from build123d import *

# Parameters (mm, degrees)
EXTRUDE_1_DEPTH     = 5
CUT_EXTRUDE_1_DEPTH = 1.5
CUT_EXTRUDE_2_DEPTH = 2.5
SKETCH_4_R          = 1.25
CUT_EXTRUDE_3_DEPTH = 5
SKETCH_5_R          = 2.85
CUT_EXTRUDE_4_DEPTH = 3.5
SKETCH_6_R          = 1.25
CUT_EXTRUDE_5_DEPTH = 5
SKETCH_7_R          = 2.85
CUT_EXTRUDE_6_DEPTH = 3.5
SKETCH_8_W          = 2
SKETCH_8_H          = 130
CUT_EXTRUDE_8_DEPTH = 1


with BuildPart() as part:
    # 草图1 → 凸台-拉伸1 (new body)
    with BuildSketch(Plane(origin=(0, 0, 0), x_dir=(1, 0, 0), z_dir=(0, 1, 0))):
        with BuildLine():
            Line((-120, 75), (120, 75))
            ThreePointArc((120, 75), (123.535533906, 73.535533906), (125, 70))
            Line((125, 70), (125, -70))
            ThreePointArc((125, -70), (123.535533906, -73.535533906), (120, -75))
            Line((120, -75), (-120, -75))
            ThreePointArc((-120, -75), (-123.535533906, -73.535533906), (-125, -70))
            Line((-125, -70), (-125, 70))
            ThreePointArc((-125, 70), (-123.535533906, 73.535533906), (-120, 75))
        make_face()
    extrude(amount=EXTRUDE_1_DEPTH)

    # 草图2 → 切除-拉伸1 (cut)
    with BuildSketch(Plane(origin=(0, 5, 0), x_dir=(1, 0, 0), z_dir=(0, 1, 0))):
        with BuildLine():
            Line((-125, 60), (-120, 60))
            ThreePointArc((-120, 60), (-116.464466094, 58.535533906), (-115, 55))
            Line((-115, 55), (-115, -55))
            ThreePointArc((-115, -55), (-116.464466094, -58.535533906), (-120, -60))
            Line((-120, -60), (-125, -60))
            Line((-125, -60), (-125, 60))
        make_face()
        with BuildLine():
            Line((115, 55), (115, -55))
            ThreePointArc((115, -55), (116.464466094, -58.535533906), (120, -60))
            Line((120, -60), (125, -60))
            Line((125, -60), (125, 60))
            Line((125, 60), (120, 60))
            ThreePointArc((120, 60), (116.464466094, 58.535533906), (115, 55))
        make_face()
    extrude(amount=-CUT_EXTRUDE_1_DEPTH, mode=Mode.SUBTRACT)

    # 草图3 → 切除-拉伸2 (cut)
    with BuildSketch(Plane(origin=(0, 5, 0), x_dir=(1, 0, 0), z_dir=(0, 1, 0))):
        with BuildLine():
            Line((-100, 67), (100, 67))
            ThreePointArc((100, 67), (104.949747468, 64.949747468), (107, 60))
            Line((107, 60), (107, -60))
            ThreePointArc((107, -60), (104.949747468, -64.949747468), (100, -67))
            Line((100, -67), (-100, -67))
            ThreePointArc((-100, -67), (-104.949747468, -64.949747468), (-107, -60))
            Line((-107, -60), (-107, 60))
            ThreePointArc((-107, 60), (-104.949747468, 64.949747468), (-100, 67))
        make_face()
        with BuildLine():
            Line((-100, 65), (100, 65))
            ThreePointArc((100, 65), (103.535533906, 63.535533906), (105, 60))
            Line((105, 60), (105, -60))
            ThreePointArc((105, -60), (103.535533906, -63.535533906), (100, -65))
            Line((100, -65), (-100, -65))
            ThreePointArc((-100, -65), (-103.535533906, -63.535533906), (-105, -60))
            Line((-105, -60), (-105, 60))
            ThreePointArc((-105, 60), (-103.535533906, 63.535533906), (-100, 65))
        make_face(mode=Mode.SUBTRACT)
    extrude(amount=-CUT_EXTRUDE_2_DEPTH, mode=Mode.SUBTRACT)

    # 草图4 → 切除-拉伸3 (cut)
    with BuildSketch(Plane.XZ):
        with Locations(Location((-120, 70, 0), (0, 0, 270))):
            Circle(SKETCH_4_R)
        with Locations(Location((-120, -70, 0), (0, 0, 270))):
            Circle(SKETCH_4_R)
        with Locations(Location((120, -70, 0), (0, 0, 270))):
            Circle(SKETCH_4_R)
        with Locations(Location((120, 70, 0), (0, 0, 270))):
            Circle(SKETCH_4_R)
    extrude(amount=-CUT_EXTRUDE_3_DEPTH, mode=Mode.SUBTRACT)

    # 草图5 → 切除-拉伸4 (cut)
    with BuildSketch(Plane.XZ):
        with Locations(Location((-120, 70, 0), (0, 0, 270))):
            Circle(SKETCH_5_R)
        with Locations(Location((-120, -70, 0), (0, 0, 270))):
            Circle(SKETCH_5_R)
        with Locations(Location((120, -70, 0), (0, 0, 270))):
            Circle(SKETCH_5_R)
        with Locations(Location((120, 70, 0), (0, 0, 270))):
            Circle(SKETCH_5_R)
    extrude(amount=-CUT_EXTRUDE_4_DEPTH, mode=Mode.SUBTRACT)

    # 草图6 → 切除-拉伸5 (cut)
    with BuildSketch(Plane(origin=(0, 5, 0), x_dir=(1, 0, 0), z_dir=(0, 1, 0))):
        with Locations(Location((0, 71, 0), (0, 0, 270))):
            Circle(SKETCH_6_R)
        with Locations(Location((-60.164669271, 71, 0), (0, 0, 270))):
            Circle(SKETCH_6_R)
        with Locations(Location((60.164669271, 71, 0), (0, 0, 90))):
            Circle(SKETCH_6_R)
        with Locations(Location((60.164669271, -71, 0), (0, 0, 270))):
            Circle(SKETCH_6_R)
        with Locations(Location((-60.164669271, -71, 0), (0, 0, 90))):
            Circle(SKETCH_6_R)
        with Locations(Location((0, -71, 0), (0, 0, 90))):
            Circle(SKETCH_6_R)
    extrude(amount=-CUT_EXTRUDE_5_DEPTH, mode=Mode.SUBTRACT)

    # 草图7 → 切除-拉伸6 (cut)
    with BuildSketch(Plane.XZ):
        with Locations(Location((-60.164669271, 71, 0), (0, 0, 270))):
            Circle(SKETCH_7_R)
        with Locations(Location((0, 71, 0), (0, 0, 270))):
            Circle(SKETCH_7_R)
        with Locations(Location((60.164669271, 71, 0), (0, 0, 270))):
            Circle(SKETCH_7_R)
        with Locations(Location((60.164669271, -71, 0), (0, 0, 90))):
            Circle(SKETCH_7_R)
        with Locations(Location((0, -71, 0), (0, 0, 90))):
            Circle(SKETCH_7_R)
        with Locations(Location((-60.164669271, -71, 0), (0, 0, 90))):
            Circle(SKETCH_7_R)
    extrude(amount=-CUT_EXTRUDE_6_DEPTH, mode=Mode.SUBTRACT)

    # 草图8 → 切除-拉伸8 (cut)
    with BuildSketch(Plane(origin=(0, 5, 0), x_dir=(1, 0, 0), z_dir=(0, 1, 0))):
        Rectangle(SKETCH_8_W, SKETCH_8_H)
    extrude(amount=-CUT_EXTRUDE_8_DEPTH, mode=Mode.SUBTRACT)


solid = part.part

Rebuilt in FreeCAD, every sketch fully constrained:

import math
import FreeCAD as App
import Part
import Sketcher
Q = App.Units.Quantity


def add_polygon(sketch, points):
    """Adds a closed chain of lines whose ends are joined by coincident constraints."""
    first, n = sketch.GeometryCount, len(points)
    for a, b in zip(points, points[1:] + points[:1]):
        sketch.addGeometry(Part.LineSegment(App.Vector(*a, 0), App.Vector(*b, 0)), False)
    for i in range(n):
        sketch.addConstraint(Sketcher.Constraint("Coincident", first + i, 2, first + (i + 1) % n, 1))

doc = App.newDocument("Part")
body = doc.addObject("PartDesign::Body", "Body")

# Sketch on XZ plane
sketch1 = body.newObject("Sketcher::SketchObject", "Sketch")
sketch1.AttachmentSupport = (doc.getObject("XZ_Plane"), [""])
sketch1.MapMode = "FlatFace"
sketch1.addGeometry(Part.LineSegment(App.Vector(120, -75, 0), App.Vector(-120, -75, 0)), False)
sketch1.addGeometry(Part.ArcOfCircle(Part.Circle(App.Vector(-120, -70, 0), App.Vector(0, 0, 1), 5), math.radians(180), math.radians(270)), False)
sketch1.addGeometry(Part.LineSegment(App.Vector(-125, -70, 0), App.Vector(-125, 70, 0)), False)
sketch1.addGeometry(Part.ArcOfCircle(Part.Circle(App.Vector(-120, 70, 0), App.Vector(0, 0, 1), 5), math.radians(90), math.radians(180)), False)
sketch1.addGeometry(Part.LineSegment(App.Vector(-120, 75, 0), App.Vector(120, 75, 0)), False)
sketch1.addGeometry(Part.ArcOfCircle(Part.Circle(App.Vector(120, 70, 0), App.Vector(0, 0, 1), 5), math.radians(0), math.radians(90)), False)
sketch1.addGeometry(Part.LineSegment(App.Vector(125, 70, 0), App.Vector(125, -70, 0)), False)
sketch1.addGeometry(Part.ArcOfCircle(Part.Circle(App.Vector(120, -70, 0), App.Vector(0, 0, 1), 5), math.radians(-90), math.radians(0)), False)
sketch1.addConstraint(Sketcher.Constraint("Tangent", 0, 2, 1, 2))
sketch1.addConstraint(Sketcher.Constraint("Tangent", 1, 1, 2, 1))
sketch1.addConstraint(Sketcher.Constraint("Tangent", 2, 2, 3, 2))
sketch1.addConstraint(Sketcher.Constraint("Tangent", 3, 1, 4, 1))
sketch1.addConstraint(Sketcher.Constraint("Tangent", 4, 2, 5, 2))
sketch1.addConstraint(Sketcher.Constraint("Tangent", 5, 1, 6, 1))
sketch1.addConstraint(Sketcher.Constraint("Tangent", 6, 2, 7, 2))
sketch1.addConstraint(Sketcher.Constraint("Tangent", 7, 1, 0, 1))
sketch1.addConstraint(Sketcher.Constraint("Horizontal", 0))
sketch1.addConstraint(Sketcher.Constraint("Vertical", 2))
sketch1.addConstraint(Sketcher.Constraint("Horizontal", 4))
sketch1.addConstraint(Sketcher.Constraint("Vertical", 6))
sketch1.addConstraint(Sketcher.Constraint("Equal", 1, 3))
sketch1.addConstraint(Sketcher.Constraint("Equal", 3, 5))
sketch1.addConstraint(Sketcher.Constraint("Equal", 5, 7))
sketch1.addConstraint(Sketcher.Constraint("Symmetric", 1, 3, 5, 3, -1, 1))
sketch1.addConstraint(Sketcher.Constraint("Radius", 1, Q("5 mm")))
sketch1.addConstraint(Sketcher.Constraint("DistanceX", 0, 2, 0, 1, Q("240 mm")))
sketch1.addConstraint(Sketcher.Constraint("DistanceY", 2, 1, 2, 2, Q("140 mm")))
pad1 = body.newObject("PartDesign::Pad", "Pad")
pad1.Profile = sketch1
pad1.Length = 5
pad1.Reversed = True

# Sketch on XZ plane
sketch2 = body.newObject("Sketcher::SketchObject", "Sketch001")
sketch2.AttachmentSupport = (doc.getObject("XZ_Plane"), [""])
sketch2.MapMode = "FlatFace"
sketch2.AttachmentOffset = App.Placement(App.Vector(0, 0, -5), App.Rotation())
sketch2.addGeometry(Part.LineSegment(App.Vector(-120, -60, 0), App.Vector(-125, -60, 0)), False)
sketch2.addGeometry(Part.LineSegment(App.Vector(-125, -60, 0), App.Vector(-125, 60, 0)), False)
sketch2.addGeometry(Part.LineSegment(App.Vector(-125, 60, 0), App.Vector(-120, 60, 0)), False)
sketch2.addGeometry(Part.ArcOfCircle(Part.Circle(App.Vector(-120, 55, 0), App.Vector(0, 0, 1), 5), math.radians(0), math.radians(90)), False)
sketch2.addGeometry(Part.LineSegment(App.Vector(-115, 55, 0), App.Vector(-115, -55, 0)), False)
sketch2.addGeometry(Part.ArcOfCircle(Part.Circle(App.Vector(-120, -55, 0), App.Vector(0, 0, 1), 5), math.radians(-90), math.radians(0)), False)
sketch2.addGeometry(Part.LineSegment(App.Vector(115, -55, 0), App.Vector(115, 55, 0)), False)
sketch2.addGeometry(Part.ArcOfCircle(Part.Circle(App.Vector(120, 55, 0), App.Vector(0, 0, 1), 5), math.radians(90), math.radians(180)), False)
sketch2.addGeometry(Part.LineSegment(App.Vector(120, 60, 0), App.Vector(125, 60, 0)), False)
sketch2.addGeometry(Part.LineSegment(App.Vector(125, 60, 0), App.Vector(125, -60, 0)), False)
sketch2.addGeometry(Part.LineSegment(App.Vector(125, -60, 0), App.Vector(120, -60, 0)), False)
sketch2.addGeometry(Part.ArcOfCircle(Part.Circle(App.Vector(120, -55, 0), App.Vector(0, 0, 1), 5), math.radians(180), math.radians(270)), False)
sketch2.addConstraint(Sketcher.Constraint("Coincident", 0, 2, 1, 1))
sketch2.addConstraint(Sketcher.Constraint("Coincident", 1, 2, 2, 1))
sketch2.addConstraint(Sketcher.Constraint("Tangent", 2, 2, 3, 2))
sketch2.addConstraint(Sketcher.Constraint("Tangent", 3, 1, 4, 1))
sketch2.addConstraint(Sketcher.Constraint("Tangent", 4, 2, 5, 2))
sketch2.addConstraint(Sketcher.Constraint("Tangent", 5, 1, 0, 1))
sketch2.addConstraint(Sketcher.Constraint("Tangent", 6, 2, 7, 2))
sketch2.addConstraint(Sketcher.Constraint("Tangent", 7, 1, 8, 1))
sketch2.addConstraint(Sketcher.Constraint("Coincident", 8, 2, 9, 1))
sketch2.addConstraint(Sketcher.Constraint("Coincident", 9, 2, 10, 1))
sketch2.addConstraint(Sketcher.Constraint("Tangent", 10, 2, 11, 2))
sketch2.addConstraint(Sketcher.Constraint("Tangent", 11, 1, 6, 1))
sketch2.addConstraint(Sketcher.Constraint("Horizontal", 0))
sketch2.addConstraint(Sketcher.Constraint("Vertical", 1))
sketch2.addConstraint(Sketcher.Constraint("Horizontal", 2))
sketch2.addConstraint(Sketcher.Constraint("Vertical", 4))
sketch2.addConstraint(Sketcher.Constraint("Vertical", 6))
sketch2.addConstraint(Sketcher.Constraint("Horizontal", 8))
sketch2.addConstraint(Sketcher.Constraint("Vertical", 9))
sketch2.addConstraint(Sketcher.Constraint("Horizontal", 10))
sketch2.addConstraint(Sketcher.Constraint("Equal", 3, 5))
sketch2.addConstraint(Sketcher.Constraint("Equal", 5, 7))
sketch2.addConstraint(Sketcher.Constraint("Equal", 7, 11))
sketch2.addConstraint(Sketcher.Constraint("Symmetric", 5, 3, 7, 3, -1, 1))
sketch2.addConstraint(Sketcher.Constraint("Symmetric", 1, 2, 9, 2, -1, 1))
sketch2.addConstraint(Sketcher.Constraint("Horizontal", 3, 3, 7, 3))
sketch2.addConstraint(Sketcher.Constraint("Radius", 3, Q("5 mm")))
sketch2.addConstraint(Sketcher.Constraint("DistanceX", 0, 2, 0, 1, Q("5 mm")))
sketch2.addConstraint(Sketcher.Constraint("DistanceY", 1, 1, 1, 2, Q("120 mm")))
sketch2.addConstraint(Sketcher.Constraint("DistanceX", 3, 3, -1, 1, Q("120 mm")))
pocket1 = body.newObject("PartDesign::Pocket", "Pocket")
pocket1.Profile = sketch2
pocket1.Length = 1.5
pocket1.Reversed = True

# Sketch on XZ plane
sketch3 = body.newObject("Sketcher::SketchObject", "Sketch002")
sketch3.AttachmentSupport = (doc.getObject("XZ_Plane"), [""])
sketch3.MapMode = "FlatFace"
sketch3.AttachmentOffset = App.Placement(App.Vector(0, 0, -5), App.Rotation())
sketch3.addGeometry(Part.LineSegment(App.Vector(100, -67, 0), App.Vector(-100, -67, 0)), False)
sketch3.addGeometry(Part.ArcOfCircle(Part.Circle(App.Vector(-100, -60, 0), App.Vector(0, 0, 1), 7), math.radians(-180), math.radians(-90)), False)
sketch3.addGeometry(Part.LineSegment(App.Vector(-107, -60, 0), App.Vector(-107, 60, 0)), False)
sketch3.addGeometry(Part.ArcOfCircle(Part.Circle(App.Vector(-100, 60, 0), App.Vector(0, 0, 1), 7), math.radians(90), math.radians(180)), False)
sketch3.addGeometry(Part.LineSegment(App.Vector(-100, 67, 0), App.Vector(100, 67, 0)), False)
sketch3.addGeometry(Part.ArcOfCircle(Part.Circle(App.Vector(100, 60, 0), App.Vector(0, 0, 1), 7), math.radians(0), math.radians(90)), False)
sketch3.addGeometry(Part.LineSegment(App.Vector(107, 60, 0), App.Vector(107, -60, 0)), False)
sketch3.addGeometry(Part.ArcOfCircle(Part.Circle(App.Vector(100, -60, 0), App.Vector(0, 0, 1), 7), math.radians(-90), math.radians(0)), False)
sketch3.addGeometry(Part.LineSegment(App.Vector(-100, -65, 0), App.Vector(100, -65, 0)), False)
sketch3.addGeometry(Part.ArcOfCircle(Part.Circle(App.Vector(100, -60, 0), App.Vector(0, 0, 1), 5), math.radians(-90), math.radians(0)), False)
sketch3.addGeometry(Part.LineSegment(App.Vector(105, -60, 0), App.Vector(105, 60, 0)), False)
sketch3.addGeometry(Part.ArcOfCircle(Part.Circle(App.Vector(100, 60, 0), App.Vector(0, 0, 1), 5), math.radians(0), math.radians(90)), False)
sketch3.addGeometry(Part.LineSegment(App.Vector(100, 65, 0), App.Vector(-100, 65, 0)), False)
sketch3.addGeometry(Part.ArcOfCircle(Part.Circle(App.Vector(-100, 60, 0), App.Vector(0, 0, 1), 5), math.radians(90), math.radians(180)), False)
sketch3.addGeometry(Part.LineSegment(App.Vector(-105, 60, 0), App.Vector(-105, -60, 0)), False)
sketch3.addGeometry(Part.ArcOfCircle(Part.Circle(App.Vector(-100, -60, 0), App.Vector(0, 0, 1), 5), math.radians(180), math.radians(270)), False)
sketch3.addConstraint(Sketcher.Constraint("Tangent", 0, 2, 1, 2))
sketch3.addConstraint(Sketcher.Constraint("Tangent", 1, 1, 2, 1))
sketch3.addConstraint(Sketcher.Constraint("Tangent", 2, 2, 3, 2))
sketch3.addConstraint(Sketcher.Constraint("Tangent", 3, 1, 4, 1))
sketch3.addConstraint(Sketcher.Constraint("Tangent", 4, 2, 5, 2))
sketch3.addConstraint(Sketcher.Constraint("Tangent", 5, 1, 6, 1))
sketch3.addConstraint(Sketcher.Constraint("Tangent", 6, 2, 7, 2))
sketch3.addConstraint(Sketcher.Constraint("Tangent", 7, 1, 0, 1))
sketch3.addConstraint(Sketcher.Constraint("Tangent", 8, 2, 9, 1))
sketch3.addConstraint(Sketcher.Constraint("Tangent", 9, 2, 10, 1))
sketch3.addConstraint(Sketcher.Constraint("Tangent", 10, 2, 11, 1))
sketch3.addConstraint(Sketcher.Constraint("Tangent", 11, 2, 12, 1))
sketch3.addConstraint(Sketcher.Constraint("Tangent", 12, 2, 13, 1))
sketch3.addConstraint(Sketcher.Constraint("Tangent", 13, 2, 14, 1))
sketch3.addConstraint(Sketcher.Constraint("Tangent", 14, 2, 15, 1))
sketch3.addConstraint(Sketcher.Constraint("Tangent", 15, 2, 8, 1))
sketch3.addConstraint(Sketcher.Constraint("Horizontal", 0))
sketch3.addConstraint(Sketcher.Constraint("Vertical", 2))
sketch3.addConstraint(Sketcher.Constraint("Horizontal", 4))
sketch3.addConstraint(Sketcher.Constraint("Vertical", 6))
sketch3.addConstraint(Sketcher.Constraint("Horizontal", 8))
sketch3.addConstraint(Sketcher.Constraint("Vertical", 10))
sketch3.addConstraint(Sketcher.Constraint("Horizontal", 12))
sketch3.addConstraint(Sketcher.Constraint("Vertical", 14))
sketch3.addConstraint(Sketcher.Constraint("Coincident", 9, 3, 7, 3))
sketch3.addConstraint(Sketcher.Constraint("Coincident", 11, 3, 5, 3))
sketch3.addConstraint(Sketcher.Constraint("Coincident", 13, 3, 3, 3))
sketch3.addConstraint(Sketcher.Constraint("Equal", 1, 3))
sketch3.addConstraint(Sketcher.Constraint("Equal", 3, 5))
sketch3.addConstraint(Sketcher.Constraint("Equal", 5, 7))
sketch3.addConstraint(Sketcher.Constraint("Equal", 13, 15))
sketch3.addConstraint(Sketcher.Constraint("Symmetric", 1, 3, 5, 3, -1, 1))
sketch3.addConstraint(Sketcher.Constraint("Radius", 1, Q("7 mm")))
sketch3.addConstraint(Sketcher.Constraint("Radius", 9, Q("5 mm")))
sketch3.addConstraint(Sketcher.Constraint("DistanceX", 0, 2, 0, 1, Q("200 mm")))
sketch3.addConstraint(Sketcher.Constraint("DistanceY", 2, 1, 2, 2, Q("120 mm")))
pocket2 = body.newObject("PartDesign::Pocket", "Pocket001")
pocket2.Profile = sketch3
pocket2.Length = 2.5
pocket2.Reversed = True

# Sketch on XZ plane
sketch4 = body.newObject("Sketcher::SketchObject", "Sketch003")
sketch4.AttachmentSupport = (doc.getObject("XZ_Plane"), [""])
sketch4.MapMode = "FlatFace"
sketch4.addGeometry(Part.Circle(App.Vector(-120, 70, 0), App.Vector(0, 0, 1), 1.25), False)
sketch4.addGeometry(Part.Circle(App.Vector(-120, -70, 0), App.Vector(0, 0, 1), 1.25), False)
sketch4.addGeometry(Part.Circle(App.Vector(120, -70, 0), App.Vector(0, 0, 1), 1.25), False)
sketch4.addGeometry(Part.Circle(App.Vector(120, 70, 0), App.Vector(0, 0, 1), 1.25), False)
sketch4.addConstraint(Sketcher.Constraint("Equal", 0, 1))
sketch4.addConstraint(Sketcher.Constraint("Equal", 1, 2))
sketch4.addConstraint(Sketcher.Constraint("Equal", 2, 3))
sketch4.addConstraint(Sketcher.Constraint("Symmetric", 0, 3, 2, 3, -1, 1))
sketch4.addConstraint(Sketcher.Constraint("Symmetric", 1, 3, 3, 3, -1, 1))
sketch4.addConstraint(Sketcher.Constraint("Symmetric", 1, 3, 2, 3, -2))
sketch4.addConstraint(Sketcher.Constraint("Diameter", 0, Q("2.5 mm")))
sketch4.addConstraint(Sketcher.Constraint("DistanceX", 0, 3, -1, 1, Q("120 mm")))
sketch4.addConstraint(Sketcher.Constraint("DistanceY", -1, 1, 0, 3, Q("70 mm")))
pocket3 = body.newObject("PartDesign::Pocket", "Pocket002")
pocket3.Profile = sketch4
pocket3.Length = 5

# Sketch on XZ plane
sketch5 = body.newObject("Sketcher::SketchObject", "Sketch004")
sketch5.AttachmentSupport = (doc.getObject("XZ_Plane"), [""])
sketch5.MapMode = "FlatFace"
sketch5.addGeometry(Part.Circle(App.Vector(-120, 70, 0), App.Vector(0, 0, 1), 2.85), False)
sketch5.addGeometry(Part.Circle(App.Vector(-120, -70, 0), App.Vector(0, 0, 1), 2.85), False)
sketch5.addGeometry(Part.Circle(App.Vector(120, -70, 0), App.Vector(0, 0, 1), 2.85), False)
sketch5.addGeometry(Part.Circle(App.Vector(120, 70, 0), App.Vector(0, 0, 1), 2.85), False)
sketch5.addConstraint(Sketcher.Constraint("Equal", 0, 1))
sketch5.addConstraint(Sketcher.Constraint("Equal", 1, 2))
sketch5.addConstraint(Sketcher.Constraint("Equal", 2, 3))
sketch5.addConstraint(Sketcher.Constraint("Symmetric", 0, 3, 2, 3, -1, 1))
sketch5.addConstraint(Sketcher.Constraint("Symmetric", 1, 3, 3, 3, -1, 1))
sketch5.addConstraint(Sketcher.Constraint("Symmetric", 1, 3, 2, 3, -2))
sketch5.addConstraint(Sketcher.Constraint("Diameter", 0, Q("5.7 mm")))
sketch5.addConstraint(Sketcher.Constraint("DistanceX", 0, 3, -1, 1, Q("120 mm")))
sketch5.addConstraint(Sketcher.Constraint("DistanceY", -1, 1, 0, 3, Q("70 mm")))
pocket4 = body.newObject("PartDesign::Pocket", "Pocket003")
pocket4.Profile = sketch5
pocket4.Length = 3.5

# Sketch on XZ plane
sketch6 = body.newObject("Sketcher::SketchObject", "Sketch005")
sketch6.AttachmentSupport = (doc.getObject("XZ_Plane"), [""])
sketch6.MapMode = "FlatFace"
sketch6.AttachmentOffset = App.Placement(App.Vector(0, 0, -5), App.Rotation())
sketch6.addGeometry(Part.Circle(App.Vector(0, -71, 0), App.Vector(0, 0, 1), 1.25), False)
sketch6.addGeometry(Part.Circle(App.Vector(-60.164669, -71, 0), App.Vector(0, 0, 1), 1.25), False)
sketch6.addGeometry(Part.Circle(App.Vector(60.164669, -71, 0), App.Vector(0, 0, 1), 1.25), False)
sketch6.addGeometry(Part.Circle(App.Vector(60.164669, 71, 0), App.Vector(0, 0, 1), 1.25), False)
sketch6.addGeometry(Part.Circle(App.Vector(-60.164669, 71, 0), App.Vector(0, 0, 1), 1.25), False)
sketch6.addGeometry(Part.Circle(App.Vector(0, 71, 0), App.Vector(0, 0, 1), 1.25), False)
sketch6.addConstraint(Sketcher.Constraint("Equal", 0, 1))
sketch6.addConstraint(Sketcher.Constraint("Equal", 1, 2))
sketch6.addConstraint(Sketcher.Constraint("Equal", 2, 3))
sketch6.addConstraint(Sketcher.Constraint("Equal", 3, 4))
sketch6.addConstraint(Sketcher.Constraint("Equal", 4, 5))
sketch6.addConstraint(Sketcher.Constraint("Symmetric", 1, 3, 3, 3, -1, 1))
sketch6.addConstraint(Sketcher.Constraint("Symmetric", 2, 3, 4, 3, -1, 1))
sketch6.addConstraint(Sketcher.Constraint("Symmetric", 0, 3, 5, 3, -1, 1))
sketch6.addConstraint(Sketcher.Constraint("Symmetric", 1, 3, 2, 3, -2))
sketch6.addConstraint(Sketcher.Constraint("PointOnObject", 0, 3, -2))
sketch6.addConstraint(Sketcher.Constraint("Horizontal", 0, 3, 1, 3))
sketch6.addConstraint(Sketcher.Constraint("Diameter", 0, Q("2.5 mm")))
sketch6.addConstraint(Sketcher.Constraint("DistanceY", 0, 3, -1, 1, Q("71 mm")))
sketch6.addConstraint(Sketcher.Constraint("DistanceX", 1, 3, -1, 1, Q("60.164669 mm")))
pocket5 = body.newObject("PartDesign::Pocket", "Pocket004")
pocket5.Profile = sketch6
pocket5.Length = 5
pocket5.Reversed = True

# Sketch on XZ plane
sketch7 = body.newObject("Sketcher::SketchObject", "Sketch006")
sketch7.AttachmentSupport = (doc.getObject("XZ_Plane"), [""])
sketch7.MapMode = "FlatFace"
sketch7.addGeometry(Part.Circle(App.Vector(-60.164669, 71, 0), App.Vector(0, 0, 1), 2.85), False)
sketch7.addGeometry(Part.Circle(App.Vector(0, 71, 0), App.Vector(0, 0, 1), 2.85), False)
sketch7.addGeometry(Part.Circle(App.Vector(60.164669, 71, 0), App.Vector(0, 0, 1), 2.85), False)
sketch7.addGeometry(Part.Circle(App.Vector(60.164669, -71, 0), App.Vector(0, 0, 1), 2.85), False)
sketch7.addGeometry(Part.Circle(App.Vector(0, -71, 0), App.Vector(0, 0, 1), 2.85), False)
sketch7.addGeometry(Part.Circle(App.Vector(-60.164669, -71, 0), App.Vector(0, 0, 1), 2.85), False)
sketch7.addConstraint(Sketcher.Constraint("Equal", 0, 1))
sketch7.addConstraint(Sketcher.Constraint("Equal", 1, 2))
sketch7.addConstraint(Sketcher.Constraint("Equal", 2, 3))
sketch7.addConstraint(Sketcher.Constraint("Equal", 3, 4))
sketch7.addConstraint(Sketcher.Constraint("Equal", 4, 5))
sketch7.addConstraint(Sketcher.Constraint("Symmetric", 0, 3, 3, 3, -1, 1))
sketch7.addConstraint(Sketcher.Constraint("Symmetric", 1, 3, 4, 3, -1, 1))
sketch7.addConstraint(Sketcher.Constraint("Symmetric", 2, 3, 5, 3, -1, 1))
sketch7.addConstraint(Sketcher.Constraint("Symmetric", 0, 3, 2, 3, -2))
sketch7.addConstraint(Sketcher.Constraint("PointOnObject", 1, 3, -2))
sketch7.addConstraint(Sketcher.Constraint("Horizontal", 0, 3, 1, 3))
sketch7.addConstraint(Sketcher.Constraint("Diameter", 0, Q("5.7 mm")))
sketch7.addConstraint(Sketcher.Constraint("DistanceY", -1, 1, 0, 3, Q("71 mm")))
sketch7.addConstraint(Sketcher.Constraint("DistanceX", 0, 3, -1, 1, Q("60.164669 mm")))
pocket6 = body.newObject("PartDesign::Pocket", "Pocket005")
pocket6.Profile = sketch7
pocket6.Length = 3.5

# Sketch on XZ plane
sketch8 = body.newObject("Sketcher::SketchObject", "Sketch007")
sketch8.AttachmentSupport = (doc.getObject("XZ_Plane"), [""])
sketch8.MapMode = "FlatFace"
sketch8.AttachmentOffset = App.Placement(App.Vector(0, 0, -5), App.Rotation())
add_polygon(sketch8, [(-1, -65), (-1, 65), (1, 65), (1, -65)])  # lines 0-3
sketch8.addConstraint(Sketcher.Constraint("Vertical", 0))
sketch8.addConstraint(Sketcher.Constraint("Horizontal", 1))
sketch8.addConstraint(Sketcher.Constraint("Vertical", 2))
sketch8.addConstraint(Sketcher.Constraint("Horizontal", 3))
sketch8.addConstraint(Sketcher.Constraint("Symmetric", 0, 2, 2, 2, -1, 1))
sketch8.addConstraint(Sketcher.Constraint("DistanceX", 1, 1, 1, 2, Q("2 mm")))
sketch8.addConstraint(Sketcher.Constraint("DistanceY", 0, 1, 0, 2, Q("130 mm")))
pocket7 = body.newObject("PartDesign::Pocket", "Pocket006")
pocket7.Profile = sketch8
pocket7.Length = 1
pocket7.Reversed = True

doc.recompute()
